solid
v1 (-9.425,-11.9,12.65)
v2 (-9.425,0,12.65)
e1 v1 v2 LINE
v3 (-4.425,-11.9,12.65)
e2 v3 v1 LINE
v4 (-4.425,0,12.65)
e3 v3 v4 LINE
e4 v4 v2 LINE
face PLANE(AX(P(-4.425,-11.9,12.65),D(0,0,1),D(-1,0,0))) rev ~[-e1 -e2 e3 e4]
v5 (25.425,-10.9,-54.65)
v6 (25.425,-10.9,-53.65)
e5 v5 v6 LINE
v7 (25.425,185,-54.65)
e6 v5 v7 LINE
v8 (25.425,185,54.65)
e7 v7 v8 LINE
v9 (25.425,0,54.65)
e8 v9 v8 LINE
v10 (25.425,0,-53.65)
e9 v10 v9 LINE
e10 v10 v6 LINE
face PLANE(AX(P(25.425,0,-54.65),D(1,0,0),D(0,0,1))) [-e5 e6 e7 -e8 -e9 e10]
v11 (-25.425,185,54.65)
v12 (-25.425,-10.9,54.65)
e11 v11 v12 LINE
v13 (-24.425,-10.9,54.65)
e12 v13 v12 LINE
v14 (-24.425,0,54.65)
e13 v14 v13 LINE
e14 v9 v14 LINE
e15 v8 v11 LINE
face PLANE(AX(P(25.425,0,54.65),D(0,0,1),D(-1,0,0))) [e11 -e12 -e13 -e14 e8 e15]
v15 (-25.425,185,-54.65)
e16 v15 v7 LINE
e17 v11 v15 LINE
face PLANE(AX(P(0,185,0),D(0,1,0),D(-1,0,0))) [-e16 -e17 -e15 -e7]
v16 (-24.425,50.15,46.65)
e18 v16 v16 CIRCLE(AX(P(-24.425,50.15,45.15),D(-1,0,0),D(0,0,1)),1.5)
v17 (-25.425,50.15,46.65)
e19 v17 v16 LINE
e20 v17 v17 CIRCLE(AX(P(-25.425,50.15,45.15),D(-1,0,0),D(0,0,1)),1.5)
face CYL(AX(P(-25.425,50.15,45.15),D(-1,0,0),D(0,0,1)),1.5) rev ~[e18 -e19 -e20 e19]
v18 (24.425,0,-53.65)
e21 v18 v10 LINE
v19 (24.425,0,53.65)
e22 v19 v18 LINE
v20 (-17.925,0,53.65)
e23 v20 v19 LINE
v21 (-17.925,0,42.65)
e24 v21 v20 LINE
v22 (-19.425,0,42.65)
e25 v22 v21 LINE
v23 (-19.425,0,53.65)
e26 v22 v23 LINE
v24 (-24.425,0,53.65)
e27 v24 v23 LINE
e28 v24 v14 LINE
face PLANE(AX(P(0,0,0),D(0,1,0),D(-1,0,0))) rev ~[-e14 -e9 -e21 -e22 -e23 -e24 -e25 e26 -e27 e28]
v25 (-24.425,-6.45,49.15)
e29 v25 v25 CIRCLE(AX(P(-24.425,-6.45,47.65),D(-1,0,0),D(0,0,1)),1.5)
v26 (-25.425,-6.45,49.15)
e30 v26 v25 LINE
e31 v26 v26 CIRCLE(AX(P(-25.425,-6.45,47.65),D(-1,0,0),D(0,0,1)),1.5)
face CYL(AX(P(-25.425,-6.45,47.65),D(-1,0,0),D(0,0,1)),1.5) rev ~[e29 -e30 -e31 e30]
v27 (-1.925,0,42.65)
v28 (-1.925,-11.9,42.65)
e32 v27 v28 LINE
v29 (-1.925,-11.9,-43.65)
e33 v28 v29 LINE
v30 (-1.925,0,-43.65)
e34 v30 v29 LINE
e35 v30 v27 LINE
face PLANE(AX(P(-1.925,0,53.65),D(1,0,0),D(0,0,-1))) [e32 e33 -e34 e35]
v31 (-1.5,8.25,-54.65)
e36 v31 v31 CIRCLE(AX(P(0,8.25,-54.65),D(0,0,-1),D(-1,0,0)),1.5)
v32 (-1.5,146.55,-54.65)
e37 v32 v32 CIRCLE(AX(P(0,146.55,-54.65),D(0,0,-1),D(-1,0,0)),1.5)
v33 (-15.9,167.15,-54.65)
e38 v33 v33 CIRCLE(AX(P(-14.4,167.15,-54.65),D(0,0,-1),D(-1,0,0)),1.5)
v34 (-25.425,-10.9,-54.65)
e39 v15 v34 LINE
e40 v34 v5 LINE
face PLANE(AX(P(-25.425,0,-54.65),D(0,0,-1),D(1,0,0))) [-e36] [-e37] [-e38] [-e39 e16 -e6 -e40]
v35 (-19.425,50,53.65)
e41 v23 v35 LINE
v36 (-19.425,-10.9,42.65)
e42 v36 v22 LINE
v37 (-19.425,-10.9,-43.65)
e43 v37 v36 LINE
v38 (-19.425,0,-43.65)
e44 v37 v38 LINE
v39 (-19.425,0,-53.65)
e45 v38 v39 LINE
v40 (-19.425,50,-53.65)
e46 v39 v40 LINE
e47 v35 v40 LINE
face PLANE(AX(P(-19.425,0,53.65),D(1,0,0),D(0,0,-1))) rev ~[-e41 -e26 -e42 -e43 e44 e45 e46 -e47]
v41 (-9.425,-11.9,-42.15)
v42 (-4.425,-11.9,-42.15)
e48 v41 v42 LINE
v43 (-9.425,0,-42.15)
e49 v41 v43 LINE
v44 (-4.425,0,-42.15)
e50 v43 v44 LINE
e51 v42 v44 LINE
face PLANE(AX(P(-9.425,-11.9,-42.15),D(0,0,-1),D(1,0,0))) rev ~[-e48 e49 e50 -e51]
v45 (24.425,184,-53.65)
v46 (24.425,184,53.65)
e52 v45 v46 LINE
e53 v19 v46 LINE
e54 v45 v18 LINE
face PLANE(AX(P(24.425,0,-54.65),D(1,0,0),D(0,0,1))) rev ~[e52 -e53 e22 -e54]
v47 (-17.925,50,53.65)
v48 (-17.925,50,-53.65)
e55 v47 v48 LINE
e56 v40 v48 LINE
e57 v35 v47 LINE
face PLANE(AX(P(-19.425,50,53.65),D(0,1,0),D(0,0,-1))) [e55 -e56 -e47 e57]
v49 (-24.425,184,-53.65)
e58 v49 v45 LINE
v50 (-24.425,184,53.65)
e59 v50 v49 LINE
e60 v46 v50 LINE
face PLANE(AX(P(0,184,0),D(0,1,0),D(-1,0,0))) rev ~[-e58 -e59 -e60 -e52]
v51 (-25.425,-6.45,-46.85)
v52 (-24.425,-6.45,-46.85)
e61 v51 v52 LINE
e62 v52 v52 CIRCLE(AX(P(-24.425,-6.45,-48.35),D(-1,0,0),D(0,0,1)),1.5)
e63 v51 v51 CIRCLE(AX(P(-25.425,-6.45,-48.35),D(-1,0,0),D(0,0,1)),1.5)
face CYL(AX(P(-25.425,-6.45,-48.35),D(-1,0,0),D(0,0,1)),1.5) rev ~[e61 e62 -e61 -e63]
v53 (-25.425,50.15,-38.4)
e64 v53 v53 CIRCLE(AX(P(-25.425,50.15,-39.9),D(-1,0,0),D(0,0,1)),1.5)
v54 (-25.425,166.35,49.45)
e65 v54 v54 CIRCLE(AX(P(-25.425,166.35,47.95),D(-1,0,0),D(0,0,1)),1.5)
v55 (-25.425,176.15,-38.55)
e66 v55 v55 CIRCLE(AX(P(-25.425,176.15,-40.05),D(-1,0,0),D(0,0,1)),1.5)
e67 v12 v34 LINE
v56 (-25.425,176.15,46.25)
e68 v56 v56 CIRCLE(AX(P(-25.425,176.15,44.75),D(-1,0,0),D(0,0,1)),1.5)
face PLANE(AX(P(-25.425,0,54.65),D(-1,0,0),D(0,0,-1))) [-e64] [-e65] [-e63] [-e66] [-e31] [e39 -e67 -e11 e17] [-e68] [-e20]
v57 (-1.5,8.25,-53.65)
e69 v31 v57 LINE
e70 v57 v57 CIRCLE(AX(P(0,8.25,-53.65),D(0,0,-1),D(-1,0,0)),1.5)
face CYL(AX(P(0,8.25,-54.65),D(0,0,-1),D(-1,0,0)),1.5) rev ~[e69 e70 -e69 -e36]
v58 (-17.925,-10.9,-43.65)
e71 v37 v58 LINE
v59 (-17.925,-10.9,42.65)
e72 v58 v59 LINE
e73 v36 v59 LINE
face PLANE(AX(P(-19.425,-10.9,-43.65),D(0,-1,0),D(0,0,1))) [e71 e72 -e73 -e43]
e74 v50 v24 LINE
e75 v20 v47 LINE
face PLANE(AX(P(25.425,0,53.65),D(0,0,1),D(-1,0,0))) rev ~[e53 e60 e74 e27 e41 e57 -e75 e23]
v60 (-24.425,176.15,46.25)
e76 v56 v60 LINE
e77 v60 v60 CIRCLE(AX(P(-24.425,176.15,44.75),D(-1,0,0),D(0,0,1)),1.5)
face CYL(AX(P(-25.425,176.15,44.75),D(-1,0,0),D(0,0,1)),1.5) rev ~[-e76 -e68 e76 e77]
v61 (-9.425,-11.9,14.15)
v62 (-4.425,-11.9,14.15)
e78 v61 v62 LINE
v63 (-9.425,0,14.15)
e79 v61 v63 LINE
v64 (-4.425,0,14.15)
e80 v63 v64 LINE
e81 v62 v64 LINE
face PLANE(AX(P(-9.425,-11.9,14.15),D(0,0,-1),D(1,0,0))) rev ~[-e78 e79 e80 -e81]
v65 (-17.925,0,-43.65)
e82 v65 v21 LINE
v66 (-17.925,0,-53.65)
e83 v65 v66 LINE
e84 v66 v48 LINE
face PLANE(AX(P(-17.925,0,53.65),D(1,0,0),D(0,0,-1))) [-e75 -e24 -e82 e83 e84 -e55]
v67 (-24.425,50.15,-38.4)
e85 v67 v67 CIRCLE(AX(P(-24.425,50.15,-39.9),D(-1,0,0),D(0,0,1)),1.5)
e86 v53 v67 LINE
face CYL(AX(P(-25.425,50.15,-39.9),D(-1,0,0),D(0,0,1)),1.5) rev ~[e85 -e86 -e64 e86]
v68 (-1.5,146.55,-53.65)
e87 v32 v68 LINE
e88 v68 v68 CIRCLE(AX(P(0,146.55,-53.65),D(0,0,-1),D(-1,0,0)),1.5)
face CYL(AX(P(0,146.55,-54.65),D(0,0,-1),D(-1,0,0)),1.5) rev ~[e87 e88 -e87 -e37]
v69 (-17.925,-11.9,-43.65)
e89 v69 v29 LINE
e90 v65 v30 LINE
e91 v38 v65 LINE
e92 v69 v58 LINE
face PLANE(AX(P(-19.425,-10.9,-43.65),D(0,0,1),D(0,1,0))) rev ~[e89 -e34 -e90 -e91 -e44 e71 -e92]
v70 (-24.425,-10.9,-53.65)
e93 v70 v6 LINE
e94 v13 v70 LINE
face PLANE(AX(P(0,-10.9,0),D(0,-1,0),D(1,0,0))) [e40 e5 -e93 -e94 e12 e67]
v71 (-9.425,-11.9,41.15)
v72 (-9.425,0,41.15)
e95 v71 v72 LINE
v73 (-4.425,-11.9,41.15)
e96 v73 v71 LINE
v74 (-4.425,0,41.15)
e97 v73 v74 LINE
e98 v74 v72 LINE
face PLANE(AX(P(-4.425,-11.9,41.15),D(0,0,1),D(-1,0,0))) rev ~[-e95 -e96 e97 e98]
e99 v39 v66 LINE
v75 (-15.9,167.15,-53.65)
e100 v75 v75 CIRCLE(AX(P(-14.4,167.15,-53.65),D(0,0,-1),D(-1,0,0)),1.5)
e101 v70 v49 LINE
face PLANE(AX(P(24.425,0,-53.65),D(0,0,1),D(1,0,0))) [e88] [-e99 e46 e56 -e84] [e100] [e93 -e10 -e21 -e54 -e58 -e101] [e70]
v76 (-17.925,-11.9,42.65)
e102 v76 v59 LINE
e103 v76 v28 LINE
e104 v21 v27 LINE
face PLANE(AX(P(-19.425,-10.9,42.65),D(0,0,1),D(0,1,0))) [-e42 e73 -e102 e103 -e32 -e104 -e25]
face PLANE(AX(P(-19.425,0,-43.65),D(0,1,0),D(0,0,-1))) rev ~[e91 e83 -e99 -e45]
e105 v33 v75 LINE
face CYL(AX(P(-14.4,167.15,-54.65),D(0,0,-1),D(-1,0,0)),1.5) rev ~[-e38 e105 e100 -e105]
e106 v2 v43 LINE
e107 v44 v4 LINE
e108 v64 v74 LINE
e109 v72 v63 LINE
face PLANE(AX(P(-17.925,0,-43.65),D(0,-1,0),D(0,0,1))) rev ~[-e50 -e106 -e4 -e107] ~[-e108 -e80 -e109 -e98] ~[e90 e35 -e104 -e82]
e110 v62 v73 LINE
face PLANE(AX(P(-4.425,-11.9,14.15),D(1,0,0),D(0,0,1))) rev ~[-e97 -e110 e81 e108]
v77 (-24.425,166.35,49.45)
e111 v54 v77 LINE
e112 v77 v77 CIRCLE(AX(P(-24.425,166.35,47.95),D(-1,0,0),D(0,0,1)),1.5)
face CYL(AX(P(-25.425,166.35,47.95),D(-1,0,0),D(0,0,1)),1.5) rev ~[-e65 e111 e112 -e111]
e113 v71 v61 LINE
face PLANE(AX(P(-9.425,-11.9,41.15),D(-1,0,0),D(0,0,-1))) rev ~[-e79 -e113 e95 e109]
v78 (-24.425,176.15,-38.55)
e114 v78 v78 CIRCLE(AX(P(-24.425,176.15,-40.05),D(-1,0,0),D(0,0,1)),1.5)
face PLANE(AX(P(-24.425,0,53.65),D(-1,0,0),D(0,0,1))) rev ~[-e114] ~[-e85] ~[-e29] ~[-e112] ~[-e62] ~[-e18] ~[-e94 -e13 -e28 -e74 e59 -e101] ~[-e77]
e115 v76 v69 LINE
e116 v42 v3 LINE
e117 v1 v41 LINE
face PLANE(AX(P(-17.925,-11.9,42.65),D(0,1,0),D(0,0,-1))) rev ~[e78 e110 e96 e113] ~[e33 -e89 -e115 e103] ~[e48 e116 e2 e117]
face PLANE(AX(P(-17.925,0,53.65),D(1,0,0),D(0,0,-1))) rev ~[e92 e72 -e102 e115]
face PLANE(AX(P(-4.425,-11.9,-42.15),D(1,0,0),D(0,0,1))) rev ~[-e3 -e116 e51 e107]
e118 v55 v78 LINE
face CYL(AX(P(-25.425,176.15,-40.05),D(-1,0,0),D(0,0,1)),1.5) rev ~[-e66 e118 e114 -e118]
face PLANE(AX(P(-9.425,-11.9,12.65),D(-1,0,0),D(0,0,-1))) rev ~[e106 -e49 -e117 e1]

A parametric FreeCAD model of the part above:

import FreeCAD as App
import Part
import Sketcher


def faces_at(feature, points):
    """Names of the faces that lie closest to the given points."""
    faces = feature.Shape.Faces
    near = lambda p: min(range(len(faces)), key=lambda i: faces[i].distToShape(Part.Vertex(*p))[0])
    return sorted({f"Face{near(p) + 1}" for p in points})


def add_polygon(sketch, points):
    """Adds a closed chain of lines whose ends are joined by coincident constraints."""
    first, n = sketch.GeometryCount, len(points)
    for a, b in zip(points, points[1:] + points[:1]):
        sketch.addGeometry(Part.LineSegment(App.Vector(*a, 0), App.Vector(*b, 0)), False)
    for i in range(n):
        sketch.addConstraint(Sketcher.Constraint("Coincident", first + i, 2, first + (i + 1) % n, 1))

doc = App.newDocument("Part")
params = doc.addObject("Spreadsheet::Sheet", "Params")
for row, (alias, value) in enumerate([
    ("sketch1_height", "109.3 mm"),
    ("sketch1_width", "50.85 mm"),
    ("pad1_length", "185 mm"),
    ("thickness_wall", "1 mm"),
    ("sketch2_width", "1 mm"),
    ("sketch2_height", "108.3 mm"),
    ("sketch2_width2", "49.85 mm"),
    ("pad2_length", "10.9 mm"),
    ("sketch3_diameter", "3 mm"),
    ("pocket1_length", "1 mm"),
    ("sketch4_diameter", "3 mm"),
    ("pocket2_length", "1 mm"),
    ("sketch5_width", "50 mm"),
    ("sketch5_height", "10 mm"),
    ("sketch5_height2", "11 mm"),
    ("sketch5_width2", "10.9 mm"),
    ("sketch5_height3", "86.3 mm"),
    ("pad3_length", "1.5 mm"),
    ("sketch6_width", "11.9 mm"),
    ("sketch6_height", "86.3 mm"),
    ("pad4_length", "16 mm"),
    ("sketch7_height", "27 mm"),
    ("sketch7_width", "5 mm"),
    ("sketch7_height2", "54.8 mm"),
    ("pocket3_length", "16 mm"),
], start=1):
    params.set(f"A{row}", alias)
    params.set(f"B{row}", "=" + value)
    params.setAlias(f"B{row}", alias)

body = doc.addObject("PartDesign::Body", "Body")

sketch1 = doc.addObject("Sketcher::SketchObject", "Sketch")
body.addObject(sketch1)
sketch1.AttachmentSupport = (doc.XZ_Plane, [""])
sketch1.MapMode = "FlatFace"
add_polygon(sketch1, [(-25, 55), (25, 55), (25, -55), (-25, -55)])
sketch1.addConstraint([
    Sketcher.Constraint("Horizontal", 0),
    Sketcher.Constraint("Vertical", 1),
    Sketcher.Constraint("Horizontal", 2),
    Sketcher.Constraint("Vertical", 3),
    Sketcher.Constraint("Symmetric", 0, 2, 2, 2, -1, 1),
    Sketcher.Constraint("DistanceY", 1, 2, 1, 1, 109.3),
    Sketcher.Constraint("DistanceX", 0, 1, 0, 2, 50.85),
])
sketch1.setExpression("Constraints[9]", "Params.sketch1_height")
sketch1.setExpression("Constraints[10]", "Params.sketch1_width")
pad1 = doc.addObject("PartDesign::Pad", "Pad")
body.addObject(pad1)
pad1.Profile = sketch1
pad1.setExpression("Length", "Params.pad1_length")
pad1.Reversed = True
doc.recompute()

thickness = doc.addObject("PartDesign::Thickness", "Thickness")
body.addObject(thickness)
thickness.Base = (pad1, faces_at(pad1, [(8.475, 0, 18.217)]))
thickness.setExpression("Value", "Params.thickness_wall")
thickness.Reversed = True
thickness.Join = "Intersection"

sketch2 = doc.addObject("Sketcher::SketchObject", "Sketch001")
body.addObject(sketch2)
sketch2.AttachmentSupport = (doc.XZ_Plane, [""])
sketch2.MapMode = "FlatFace"
add_polygon(sketch2, [(25.4, -53.6), (-24.4, -53.6), (-24.4, 54.6), (-25.4, 54.6), (-25.4, -54.6), (25.4, -54.6)])
sketch2.addConstraint([
    Sketcher.Constraint("Horizontal", 0),
    Sketcher.Constraint("Vertical", 1),
    Sketcher.Constraint("Horizontal", 2),
    Sketcher.Constraint("Vertical", 3),
    Sketcher.Constraint("Horizontal", 4),
    Sketcher.Constraint("Vertical", 5),
    Sketcher.Constraint("Symmetric", 2, 2, 4, 2, -1, 1),
    Sketcher.Constraint("Equal", 2, 5),
    Sketcher.Constraint("DistanceX", 2, 2, 2, 1, 1.0),
    Sketcher.Constraint("DistanceY", 1, 1, 1, 2, 108.3),
    Sketcher.Constraint("DistanceX", 0, 2, 0, 1, 49.85),
])
sketch2.setExpression("Constraints[14]", "Params.sketch2_width")
sketch2.setExpression("Constraints[15]", "Params.sketch2_height")
sketch2.setExpression("Constraints[16]", "Params.sketch2_width2")
pad2 = doc.addObject("PartDesign::Pad", "Pad001")
body.addObject(pad2)
pad2.Profile = sketch2
pad2.setExpression("Length", "Params.pad2_length")

sketch3 = doc.addObject("Sketcher::SketchObject", "Sketch002")
body.addObject(sketch3)
sketch3.AttachmentSupport = (doc.XY_Plane, [""])
sketch3.MapMode = "FlatFace"
sketch3.AttachmentOffset = App.Placement(App.Vector(0, 0, -54.65), App.Rotation())
sketch3.addGeometry([
    Part.Circle(App.Vector(0, 8.2, 0), App.Vector(0, 0, 1), 1.5),
    Part.Circle(App.Vector(0, 146.6, 0), App.Vector(0, 0, 1), 1.5),
    Part.Circle(App.Vector(-14.4, 167.2, 0), App.Vector(0, 0, 1), 1.5),
], False)
sketch3.addConstraint([
    Sketcher.Constraint("Equal", 0, 1),
    Sketcher.Constraint("Equal", 1, 2),
    Sketcher.Constraint("PointOnObject", 0, 3, -2),
    Sketcher.Constraint("PointOnObject", 1, 3, -2),
    Sketcher.Constraint("Diameter", 0, 3.0),
    Sketcher.Constraint("DistanceX", 2, 3, -1, 1, 14.4),
    Sketcher.Constraint("DistanceY", 0, 3, 1, 3, 138.3),
    Sketcher.Constraint("DistanceY", 1, 3, 2, 3, 20.6),
    Sketcher.Constraint("DistanceY", -1, 1, 0, 3, 8.25),
])
sketch3.setExpression("Constraints[4]", "Params.sketch3_diameter")
pocket1 = doc.addObject("PartDesign::Pocket", "Pocket")
body.addObject(pocket1)
pocket1.Profile = sketch3
pocket1.setExpression("Length", "Params.pocket1_length")
pocket1.Reversed = True

sketch4 = doc.addObject("Sketcher::SketchObject", "Sketch003")
body.addObject(sketch4)
sketch4.AttachmentSupport = (doc.YZ_Plane, [""])
sketch4.MapMode = "FlatFace"
sketch4.AttachmentOffset = App.Placement(App.Vector(0, 0, -25.425), App.Rotation())
sketch4.addGeometry([
    Part.Circle(App.Vector(-6.5, -48.4, 0), App.Vector(0, 0, 1), 1.5),
    Part.Circle(App.Vector(-6.5, 47.6, 0), App.Vector(0, 0, 1), 1.5),
    Part.Circle(App.Vector(50.1, -39.9, 0), App.Vector(0, 0, 1), 1.5),
    Part.Circle(App.Vector(50.1, 45.1, 0), App.Vector(0, 0, 1), 1.5),
    Part.Circle(App.Vector(166.3, 48, 0), App.Vector(0, 0, 1), 1.5),
    Part.Circle(App.Vector(176.2, -40, 0), App.Vector(0, 0, 1), 1.5),
    Part.Circle(App.Vector(176.2, 44.8, 0), App.Vector(0, 0, 1), 1.5),
], False)
sketch4.addConstraint([
    Sketcher.Constraint("Equal", 0, 1),
    Sketcher.Constraint("Equal", 1, 2),
    Sketcher.Constraint("Equal", 2, 3),
    Sketcher.Constraint("Equal", 3, 4),
    Sketcher.Constraint("Equal", 4, 5),
    Sketcher.Constraint("Equal", 5, 6),
    Sketcher.Constraint("Vertical", 0, 3, 1, 3),
    Sketcher.Constraint("Vertical", 2, 3, 3, 3),
    Sketcher.Constraint("Vertical", 5, 3, 6, 3),
    Sketcher.Constraint("Diameter", 0, 3.0),
    Sketcher.Constraint("DistanceX", 0, 3, 2, 3, 56.6),
    Sketcher.Constraint("DistanceX", 3, 3, 4, 3, 116.2),
    Sketcher.Constraint("DistanceX", 4, 3, 5, 3, 9.8),
    Sketcher.Constraint("DistanceY", 0, 3, 1, 3, 96.0),
    Sketcher.Constraint("DistanceY", 5, 3, 4, 3, 88.0),
    Sketcher.Constraint("DistanceY", 2, 3, -1, 1, 39.9),
    Sketcher.Constraint("DistanceY", 3, 3, 1, 3, 2.5),
    Sketcher.Constraint("DistanceY", 3, 3, 4, 3, 2.8),
    Sketcher.Constraint("DistanceY", 6, 3, 4, 3, 3.2),
    Sketcher.Constraint("DistanceX", 0, 3, -1, 1, 6.45),
    Sketcher.Constraint("DistanceY", 0, 3, -1, 1, 48.35),
])
sketch4.setExpression("Constraints[9]", "Params.sketch4_diameter")
pocket2 = doc.addObject("PartDesign::Pocket", "Pocket001")
body.addObject(pocket2)
pocket2.Profile = sketch4
pocket2.setExpression("Length", "Params.pocket2_length")
pocket2.Reversed = True

sketch5 = doc.addObject("Sketcher::SketchObject", "Sketch004")
body.addObject(sketch5)
sketch5.AttachmentSupport = (doc.YZ_Plane, [""])
sketch5.MapMode = "FlatFace"
sketch5.AttachmentOffset = App.Placement(App.Vector(0, 0, -19.425), App.Rotation())
add_polygon(sketch5, [(-11, 43), (-11, -44), (0, -44), (0, -54), (50, -54), (50, 54), (0, 54), (0, 43)])
sketch5.addConstraint([
    Sketcher.Constraint("Vertical", 0),
    Sketcher.Constraint("Horizontal", 1),
    Sketcher.Constraint("Vertical", 2),
    Sketcher.Constraint("Horizontal", 3),
    Sketcher.Constraint("Vertical", 4),
    Sketcher.Constraint("Horizontal", 5),
    Sketcher.Constraint("Vertical", 6),
    Sketcher.Constraint("Horizontal", 7),
    Sketcher.Constraint("Symmetric", 2, 2, 5, 2, -1, 1),
    Sketcher.Constraint("PointOnObject", 1, 2, -2),
    Sketcher.Constraint("DistanceX", 3, 1, 3, 2, 50.0),
    Sketcher.Constraint("DistanceY", 2, 2, 2, 1, 10.0),
    Sketcher.Constraint("DistanceY", 6, 2, 6, 1, 11.0),
    Sketcher.Constraint("DistanceX", 1, 1, 1, 2, 10.9),
    Sketcher.Constraint("DistanceY", 0, 2, 0, 1, 86.3),
])
sketch5.setExpression("Constraints[18]", "Params.sketch5_width")
sketch5.setExpression("Constraints[19]", "Params.sketch5_height")
sketch5.setExpression("Constraints[20]", "Params.sketch5_height2")
sketch5.setExpression("Constraints[21]", "Params.sketch5_width2")
sketch5.setExpression("Constraints[22]", "Params.sketch5_height3")
pad3 = doc.addObject("PartDesign::Pad", "Pad002")
body.addObject(pad3)
pad3.Profile = sketch5
pad3.setExpression("Length", "Params.pad3_length")

sketch6 = doc.addObject("Sketcher::SketchObject", "Sketch005")
body.addObject(sketch6)
sketch6.AttachmentSupport = (doc.YZ_Plane, [""])
sketch6.MapMode = "FlatFace"
sketch6.AttachmentOffset = App.Placement(App.Vector(0, 0, -17.925), App.Rotation())
add_polygon(sketch6, [(0, -44), (0, 43), (-12, 43), (-12, -44)])
sketch6.addConstraint([
    Sketcher.Constraint("Vertical", 0),
    Sketcher.Constraint("Horizontal", 1),
    Sketcher.Constraint("Vertical", 2),
    Sketcher.Constraint("Horizontal", 3),
    Sketcher.Constraint("PointOnObject", 0, 2, -2),
    Sketcher.Constraint("DistanceX", 1, 2, 1, 1, 11.9),
    Sketcher.Constraint("DistanceY", 0, 1, 0, 2, 86.3),
    Sketcher.Constraint("DistanceY", -1, 1, 0, 2, 42.65),
])
sketch6.setExpression("Constraints[9]", "Params.sketch6_width")
sketch6.setExpression("Constraints[10]", "Params.sketch6_height")
pad4 = doc.addObject("PartDesign::Pad", "Pad003")
body.addObject(pad4)
pad4.Profile = sketch6
pad4.setExpression("Length", "Params.pad4_length")

sketch7 = doc.addObject("Sketcher::SketchObject", "Sketch006")
body.addObject(sketch7)
sketch7.AttachmentSupport = (doc.XZ_Plane, [""])
sketch7.MapMode = "FlatFace"
sketch7.AttachmentOffset = App.Placement(App.Vector(0, 0, 11.9), App.Rotation())
add_polygon(sketch7, [(-4, 14), (-4, 41), (-9, 41), (-9, 14)])
add_polygon(sketch7, [(-4, -42), (-4, 13), (-9, 13), (-9, -42)])
sketch7.addConstraint([
    Sketcher.Constraint("Vertical", 0),
    Sketcher.Constraint("Horizontal", 1),
    Sketcher.Constraint("Vertical", 2),
    Sketcher.Constraint("Horizontal", 3),
    Sketcher.Constraint("Vertical", 4),
    Sketcher.Constraint("Horizontal", 5),
    Sketcher.Constraint("Vertical", 6),
    Sketcher.Constraint("Horizontal", 7),
    Sketcher.Constraint("Vertical", 3, 2, 4, 2),
    Sketcher.Constraint("Vertical", 2, 2, 5, 2),
    Sketcher.Constraint("DistanceY", 0, 1, 0, 2, 27.0),
    Sketcher.Constraint("DistanceY", 4, 2, 3, 2, 1.5),
    Sketcher.Constraint("DistanceX", 1, 2, 1, 1, 5.0),
    Sketcher.Constraint("DistanceY", 4, 1, 4, 2, 54.8),
    Sketcher.Constraint("DistanceY", -1, 1, 0, 2, 41.15),
    Sketcher.Constraint("DistanceX", 0, 2, -1, 1, 4.425),
])
sketch7.setExpression("Constraints[18]", "Params.sketch7_height")
sketch7.setExpression("Constraints[20]", "Params.sketch7_width")
sketch7.setExpression("Constraints[21]", "Params.sketch7_height2")
pocket3 = doc.addObject("PartDesign::Pocket", "Pocket002")
body.addObject(pocket3)
pocket3.Profile = sketch7
pocket3.setExpression("Length", "Params.pocket3_length")

doc.recompute()
